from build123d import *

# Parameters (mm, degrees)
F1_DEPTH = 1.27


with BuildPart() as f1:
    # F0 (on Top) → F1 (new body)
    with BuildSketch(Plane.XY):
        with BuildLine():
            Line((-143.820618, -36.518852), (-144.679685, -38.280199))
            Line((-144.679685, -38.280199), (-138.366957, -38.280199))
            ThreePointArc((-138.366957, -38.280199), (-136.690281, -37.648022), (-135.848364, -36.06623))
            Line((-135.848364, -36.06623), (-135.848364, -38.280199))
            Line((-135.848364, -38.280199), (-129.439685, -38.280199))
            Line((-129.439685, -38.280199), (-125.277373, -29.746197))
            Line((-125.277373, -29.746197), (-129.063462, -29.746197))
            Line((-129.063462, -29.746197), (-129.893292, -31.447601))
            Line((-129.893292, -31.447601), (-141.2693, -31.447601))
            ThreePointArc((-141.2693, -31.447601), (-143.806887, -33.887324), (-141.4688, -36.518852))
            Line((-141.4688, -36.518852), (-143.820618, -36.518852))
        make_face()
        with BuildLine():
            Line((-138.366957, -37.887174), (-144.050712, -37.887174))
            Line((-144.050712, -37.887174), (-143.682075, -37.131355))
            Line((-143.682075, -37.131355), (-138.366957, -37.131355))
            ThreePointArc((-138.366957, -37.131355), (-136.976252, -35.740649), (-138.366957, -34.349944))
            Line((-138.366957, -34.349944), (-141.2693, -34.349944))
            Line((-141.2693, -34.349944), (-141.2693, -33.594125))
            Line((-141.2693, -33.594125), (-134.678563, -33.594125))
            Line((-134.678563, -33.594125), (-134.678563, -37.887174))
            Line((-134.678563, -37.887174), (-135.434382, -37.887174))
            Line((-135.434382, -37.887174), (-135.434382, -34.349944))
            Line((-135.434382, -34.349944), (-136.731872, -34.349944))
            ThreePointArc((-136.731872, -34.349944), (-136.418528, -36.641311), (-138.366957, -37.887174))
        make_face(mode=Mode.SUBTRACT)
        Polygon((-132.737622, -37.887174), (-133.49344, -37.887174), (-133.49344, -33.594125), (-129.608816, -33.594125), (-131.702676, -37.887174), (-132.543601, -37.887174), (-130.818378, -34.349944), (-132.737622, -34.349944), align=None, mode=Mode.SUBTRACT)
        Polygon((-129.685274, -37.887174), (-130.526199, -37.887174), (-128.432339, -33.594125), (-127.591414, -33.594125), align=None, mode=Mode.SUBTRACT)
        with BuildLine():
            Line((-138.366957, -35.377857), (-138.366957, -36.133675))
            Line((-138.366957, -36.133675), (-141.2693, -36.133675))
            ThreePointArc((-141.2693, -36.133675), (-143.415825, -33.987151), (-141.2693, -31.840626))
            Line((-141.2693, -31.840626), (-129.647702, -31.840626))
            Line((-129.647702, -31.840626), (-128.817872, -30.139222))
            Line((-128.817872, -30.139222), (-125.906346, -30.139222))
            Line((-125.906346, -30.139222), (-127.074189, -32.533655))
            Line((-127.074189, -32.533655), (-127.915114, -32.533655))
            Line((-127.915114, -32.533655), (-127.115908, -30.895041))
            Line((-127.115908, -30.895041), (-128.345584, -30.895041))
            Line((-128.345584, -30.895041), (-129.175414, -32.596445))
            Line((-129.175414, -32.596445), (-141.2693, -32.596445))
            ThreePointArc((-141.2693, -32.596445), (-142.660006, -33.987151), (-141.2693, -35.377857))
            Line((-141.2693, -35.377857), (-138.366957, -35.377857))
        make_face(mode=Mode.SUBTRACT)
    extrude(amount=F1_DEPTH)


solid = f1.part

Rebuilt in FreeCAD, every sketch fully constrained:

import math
import FreeCAD as App
import Part
import Sketcher
Q = App.Units.Quantity


def add_polygon(sketch, points):
    """Adds a closed chain of lines whose ends are joined by coincident constraints."""
    first, n = sketch.GeometryCount, len(points)
    for a, b in zip(points, points[1:] + points[:1]):
        sketch.addGeometry(Part.LineSegment(App.Vector(*a, 0), App.Vector(*b, 0)), False)
    for i in range(n):
        sketch.addConstraint(Sketcher.Constraint("Coincident", first + i, 2, first + (i + 1) % n, 1))

doc = App.newDocument("Part")
body = doc.addObject("PartDesign::Body", "Body")

# Sketch on XY plane
sketch1 = body.newObject("Sketcher::SketchObject", "Sketch")
sketch1.AttachmentSupport = (doc.getObject("XY_Plane"), [""])
sketch1.MapMode = "FlatFace"
sketch1.addGeometry(Part.LineSegment(App.Vector(-143.8, -36.5, 0), App.Vector(-144.7, -38.3, 0)), False)  # 0
sketch1.addGeometry(Part.LineSegment(App.Vector(-144.7, -38.3, 0), App.Vector(-138.4, -38.3, 0)), False)  # 1
sketch1.addGeometry(Part.ArcOfCircle(Part.Circle(App.Vector(-138.4, -35.7, 0), App.Vector(0, 0, 1), 2.5), math.radians(-90), math.radians(-7)), False)  # 2
sketch1.addGeometry(Part.LineSegment(App.Vector(-135.8, -36.1, 0), App.Vector(-135.8, -38.3, 0)), False)  # 3
sketch1.addGeometry(Part.LineSegment(App.Vector(-135.8, -38.3, 0), App.Vector(-129.4, -38.3, 0)), False)  # 4
sketch1.addGeometry(Part.LineSegment(App.Vector(-129.4, -38.3, 0), App.Vector(-125.3, -29.7, 0)), False)  # 5
sketch1.addGeometry(Part.LineSegment(App.Vector(-125.3, -29.7, 0), App.Vector(-129.1, -29.7, 0)), False)  # 6
sketch1.addGeometry(Part.LineSegment(App.Vector(-129.1, -29.7, 0), App.Vector(-129.9, -31.4, 0)), False)  # 7
sketch1.addGeometry(Part.LineSegment(App.Vector(-129.9, -31.4, 0), App.Vector(-141.3, -31.4, 0)), False)  # 8
sketch1.addGeometry(Part.ArcOfCircle(Part.Circle(App.Vector(-141.3, -34, 0), App.Vector(0, 0, 1), 2.5), math.radians(90), math.radians(265)), False)  # 9
sketch1.addGeometry(Part.LineSegment(App.Vector(-141.5, -36.5, 0), App.Vector(-143.8, -36.5, 0)), False)  # 10
sketch1.addGeometry(Part.ArcOfCircle(Part.Circle(App.Vector(-138.4, -35.7, 0), App.Vector(0, 0, 1), 2.1), math.radians(-90), math.radians(40)), False)  # 11
sketch1.addGeometry(Part.LineSegment(App.Vector(-138.4, -37.9, 0), App.Vector(-144.1, -37.9, 0)), False)  # 12
sketch1.addGeometry(Part.LineSegment(App.Vector(-144.1, -37.9, 0), App.Vector(-143.7, -37.1, 0)), False)  # 13
sketch1.addGeometry(Part.LineSegment(App.Vector(-143.7, -37.1, 0), App.Vector(-138.4, -37.1, 0)), False)  # 14
sketch1.addGeometry(Part.ArcOfCircle(Part.Circle(App.Vector(-138.4, -35.7, 0), App.Vector(0, 0, 1), 1.4), math.radians(-90), math.radians(90)), False)  # 15
sketch1.addGeometry(Part.LineSegment(App.Vector(-138.4, -34.3, 0), App.Vector(-141.3, -34.3, 0)), False)  # 16
sketch1.addGeometry(Part.LineSegment(App.Vector(-141.3, -34.3, 0), App.Vector(-141.3, -33.6, 0)), False)  # 17
sketch1.addGeometry(Part.LineSegment(App.Vector(-141.3, -33.6, 0), App.Vector(-134.7, -33.6, 0)), False)  # 18
sketch1.addGeometry(Part.LineSegment(App.Vector(-134.7, -33.6, 0), App.Vector(-134.7, -37.9, 0)), False)  # 19
sketch1.addGeometry(Part.LineSegment(App.Vector(-134.7, -37.9, 0), App.Vector(-135.4, -37.9, 0)), False)  # 20
sketch1.addGeometry(Part.LineSegment(App.Vector(-135.4, -37.9, 0), App.Vector(-135.4, -34.3, 0)), False)  # 21
sketch1.addGeometry(Part.LineSegment(App.Vector(-135.4, -34.3, 0), App.Vector(-136.7, -34.3, 0)), False)  # 22
add_polygon(sketch1, [(-132.7, -34.3), (-132.7, -37.9), (-133.5, -37.9), (-133.5, -33.6), (-129.6, -33.6), (-131.7, -37.9), (-132.5, -37.9), (-130.8, -34.3)])  # lines 23-30
add_polygon(sketch1, [(-127.6, -33.6), (-129.7, -37.9), (-130.5, -37.9), (-128.4, -33.6)])  # lines 31-34
sketch1.addGeometry(Part.LineSegment(App.Vector(-141.3, -35.4, 0), App.Vector(-138.4, -35.4, 0)), False)  # 35
sketch1.addGeometry(Part.LineSegment(App.Vector(-138.4, -35.4, 0), App.Vector(-138.4, -36.1, 0)), False)  # 36
sketch1.addGeometry(Part.LineSegment(App.Vector(-138.4, -36.1, 0), App.Vector(-141.3, -36.1, 0)), False)  # 37
sketch1.addGeometry(Part.ArcOfCircle(Part.Circle(App.Vector(-141.3, -34, 0), App.Vector(0, 0, 1), 2.1), math.radians(90), math.radians(270)), False)  # 38
sketch1.addGeometry(Part.LineSegment(App.Vector(-141.3, -31.8, 0), App.Vector(-129.6, -31.8, 0)), False)  # 39
sketch1.addGeometry(Part.LineSegment(App.Vector(-129.6, -31.8, 0), App.Vector(-128.8, -30.1, 0)), False)  # 40
sketch1.addGeometry(Part.LineSegment(App.Vector(-128.8, -30.1, 0), App.Vector(-125.9, -30.1, 0)), False)  # 41
sketch1.addGeometry(Part.LineSegment(App.Vector(-125.9, -30.1, 0), App.Vector(-127.1, -32.5, 0)), False)  # 42
sketch1.addGeometry(Part.LineSegment(App.Vector(-127.1, -32.5, 0), App.Vector(-127.9, -32.5, 0)), False)  # 43
sketch1.addGeometry(Part.LineSegment(App.Vector(-127.9, -32.5, 0), App.Vector(-127.1, -30.9, 0)), False)  # 44
sketch1.addGeometry(Part.LineSegment(App.Vector(-127.1, -30.9, 0), App.Vector(-128.3, -30.9, 0)), False)  # 45
sketch1.addGeometry(Part.LineSegment(App.Vector(-128.3, -30.9, 0), App.Vector(-129.2, -32.6, 0)), False)  # 46
sketch1.addGeometry(Part.LineSegment(App.Vector(-129.2, -32.6, 0), App.Vector(-141.3, -32.6, 0)), False)  # 47
sketch1.addGeometry(Part.ArcOfCircle(Part.Circle(App.Vector(-141.3, -34, 0), App.Vector(0, 0, 1), 1.4), math.radians(90), math.radians(270)), False)  # 48
sketch1.addConstraint(Sketcher.Constraint("Coincident", 0, 2, 1, 1))
sketch1.addConstraint(Sketcher.Constraint("Tangent", 1, 2, 2, 1))
sketch1.addConstraint(Sketcher.Constraint("Coincident", 2, 2, 3, 1))
sketch1.addConstraint(Sketcher.Constraint("Coincident", 3, 2, 4, 1))
sketch1.addConstraint(Sketcher.Constraint("Coincident", 4, 2, 5, 1))
sketch1.addConstraint(Sketcher.Constraint("Coincident", 5, 2, 6, 1))
sketch1.addConstraint(Sketcher.Constraint("Coincident", 6, 2, 7, 1))
sketch1.addConstraint(Sketcher.Constraint("Coincident", 7, 2, 8, 1))
sketch1.addConstraint(Sketcher.Constraint("Tangent", 8, 2, 9, 1))
sketch1.addConstraint(Sketcher.Constraint("Coincident", 9, 2, 10, 1))
sketch1.addConstraint(Sketcher.Constraint("Coincident", 10, 2, 0, 1))
sketch1.addConstraint(Sketcher.Constraint("Tangent", 11, 1, 12, 1))
sketch1.addConstraint(Sketcher.Constraint("Coincident", 12, 2, 13, 1))
sketch1.addConstraint(Sketcher.Constraint("Coincident", 13, 2, 14, 1))
sketch1.addConstraint(Sketcher.Constraint("Tangent", 14, 2, 15, 1))
sketch1.addConstraint(Sketcher.Constraint("Tangent", 15, 2, 16, 1))
sketch1.addConstraint(Sketcher.Constraint("Coincident", 16, 2, 17, 1))
sketch1.addConstraint(Sketcher.Constraint("Coincident", 17, 2, 18, 1))
sketch1.addConstraint(Sketcher.Constraint("Coincident", 18, 2, 19, 1))
sketch1.addConstraint(Sketcher.Constraint("Coincident", 19, 2, 20, 1))
sketch1.addConstraint(Sketcher.Constraint("Coincident", 20, 2, 21, 1))
sketch1.addConstraint(Sketcher.Constraint("Coincident", 21, 2, 22, 1))
sketch1.addConstraint(Sketcher.Constraint("Coincident", 22, 2, 11, 2))
sketch1.addConstraint(Sketcher.Constraint("Coincident", 35, 2, 36, 1))
sketch1.addConstraint(Sketcher.Constraint("Coincident", 36, 2, 37, 1))
sketch1.addConstraint(Sketcher.Constraint("Tangent", 37, 2, 38, 2))
sketch1.addConstraint(Sketcher.Constraint("Tangent", 38, 1, 39, 1))
sketch1.addConstraint(Sketcher.Constraint("Coincident", 39, 2, 40, 1))
sketch1.addConstraint(Sketcher.Constraint("Coincident", 40, 2, 41, 1))
sketch1.addConstraint(Sketcher.Constraint("Coincident", 41, 2, 42, 1))
sketch1.addConstraint(Sketcher.Constraint("Coincident", 42, 2, 43, 1))
sketch1.addConstraint(Sketcher.Constraint("Coincident", 43, 2, 44, 1))
sketch1.addConstraint(Sketcher.Constraint("Coincident", 44, 2, 45, 1))
sketch1.addConstraint(Sketcher.Constraint("Coincident", 45, 2, 46, 1))
sketch1.addConstraint(Sketcher.Constraint("Coincident", 46, 2, 47, 1))
sketch1.addConstraint(Sketcher.Constraint("Tangent", 47, 2, 48, 1))
sketch1.addConstraint(Sketcher.Constraint("Tangent", 48, 2, 35, 1))
sketch1.addConstraint(Sketcher.Constraint("Horizontal", 1))
sketch1.addConstraint(Sketcher.Constraint("Vertical", 3))
sketch1.addConstraint(Sketcher.Constraint("Horizontal", 4))
sketch1.addConstraint(Sketcher.Constraint("Horizontal", 6))
sketch1.addConstraint(Sketcher.Constraint("Horizontal", 8))
sketch1.addConstraint(Sketcher.Constraint("Horizontal", 10))
sketch1.addConstraint(Sketcher.Constraint("Horizontal", 12))
sketch1.addConstraint(Sketcher.Constraint("Horizontal", 14))
sketch1.addConstraint(Sketcher.Constraint("Horizontal", 16))
sketch1.addConstraint(Sketcher.Constraint("Vertical", 17))
sketch1.addConstraint(Sketcher.Constraint("Horizontal", 18))
sketch1.addConstraint(Sketcher.Constraint("Vertical", 19))
sketch1.addConstraint(Sketcher.Constraint("Horizontal", 20))
sketch1.addConstraint(Sketcher.Constraint("Vertical", 21))
sketch1.addConstraint(Sketcher.Constraint("Horizontal", 22))
sketch1.addConstraint(Sketcher.Constraint("Vertical", 23))
sketch1.addConstraint(Sketcher.Constraint("Horizontal", 24))
sketch1.addConstraint(Sketcher.Constraint("Vertical", 25))
sketch1.addConstraint(Sketcher.Constraint("Horizontal", 26))
sketch1.addConstraint(Sketcher.Constraint("Horizontal", 28))
sketch1.addConstraint(Sketcher.Constraint("Horizontal", 30))
sketch1.addConstraint(Sketcher.Constraint("Horizontal", 32))
sketch1.addConstraint(Sketcher.Constraint("Horizontal", 34))
sketch1.addConstraint(Sketcher.Constraint("Horizontal", 35))
sketch1.addConstraint(Sketcher.Constraint("Vertical", 36))
sketch1.addConstraint(Sketcher.Constraint("Horizontal", 37))
sketch1.addConstraint(Sketcher.Constraint("Horizontal", 39))
sketch1.addConstraint(Sketcher.Constraint("Horizontal", 41))
sketch1.addConstraint(Sketcher.Constraint("Horizontal", 43))
sketch1.addConstraint(Sketcher.Constraint("Horizontal", 45))
sketch1.addConstraint(Sketcher.Constraint("Horizontal", 47))
sketch1.addConstraint(Sketcher.Constraint("Coincident", 11, 3, 2, 3))
sketch1.addConstraint(Sketcher.Constraint("Coincident", 15, 3, 2, 3))
sketch1.addConstraint(Sketcher.Constraint("Coincident", 38, 3, 9, 3))
sketch1.addConstraint(Sketcher.Constraint("Coincident", 48, 3, 9, 3))
sketch1.addConstraint(Sketcher.Constraint("Equal", 2, 9))
sketch1.addConstraint(Sketcher.Constraint("Equal", 11, 38))
sketch1.addConstraint(Sketcher.Constraint("Equal", 15, 48))
sketch1.addConstraint(Sketcher.Constraint("Parallel", 0, 5))
sketch1.addConstraint(Sketcher.Constraint("Parallel", 5, 7))
sketch1.addConstraint(Sketcher.Constraint("Parallel", 7, 13))
sketch1.addConstraint(Sketcher.Constraint("Parallel", 13, 27))
sketch1.addConstraint(Sketcher.Constraint("Parallel", 27, 29))
sketch1.addConstraint(Sketcher.Constraint("Parallel", 29, 31))
sketch1.addConstraint(Sketcher.Constraint("Parallel", 31, 33))
sketch1.addConstraint(Sketcher.Constraint("Parallel", 33, 40))
sketch1.addConstraint(Sketcher.Constraint("Parallel", 40, 42))
sketch1.addConstraint(Sketcher.Constraint("Parallel", 42, 44))
sketch1.addConstraint(Sketcher.Constraint("Parallel", 44, 46))
sketch1.addConstraint(Sketcher.Constraint("Horizontal", 1, 2, 3, 2))
sketch1.addConstraint(Sketcher.Constraint("Horizontal", 12, 2, 19, 2))
sketch1.addConstraint(Sketcher.Constraint("Horizontal", 16, 2, 21, 2))
sketch1.addConstraint(Sketcher.Constraint("Horizontal", 20, 2, 23, 2))
sketch1.addConstraint(Sketcher.Constraint("Horizontal", 18, 2, 25, 2))
sketch1.addConstraint(Sketcher.Constraint("Horizontal", 24, 2, 27, 2))
sketch1.addConstraint(Sketcher.Constraint("Horizontal", 22, 2, 29, 2))
sketch1.addConstraint(Sketcher.Constraint("Horizontal", 28, 2, 31, 2))
sketch1.addConstraint(Sketcher.Constraint("Horizontal", 26, 2, 33, 2))
sketch1.addConstraint(Sketcher.Constraint("Vertical", 8, 2, 16, 2))
sketch1.addConstraint(Sketcher.Constraint("Vertical", 15, 2, 35, 2))
sketch1.addConstraint(Sketcher.Constraint("Equal", 20, 24))
sketch1.addConstraint(Sketcher.Constraint("Equal", 28, 32))
sketch1.addConstraint(Sketcher.Constraint("Equal", 34, 43))
sketch1.addConstraint(Sketcher.Constraint("Equal", 24, 17))
sketch1.addConstraint(Sketcher.Constraint("Equal", 17, 36))
sketch1.addConstraint(Sketcher.Constraint("Equal", 7, 40))
sketch1.addConstraint(Sketcher.Constraint("Equal", 40, 46))
sketch1.addConstraint(Sketcher.Constraint("Angle", 0, Q("-116.000018 deg")))
sketch1.addConstraint(Sketcher.Constraint("Radius", 2, 2.53955))
sketch1.addConstraint(Sketcher.Constraint("DistanceY", 4, 2, 7, 2, Q("0.2689999 in")))
sketch1.addConstraint(Sketcher.Constraint("Radius", 11, 2.146524))
sketch1.addConstraint(Sketcher.Constraint("Radius", 15, 1.390705))
sketch1.addConstraint(Sketcher.Constraint("DistanceX", 7, 2, 26, 2, Q("0.0111998 in")))
sketch1.addConstraint(Sketcher.Constraint("DistanceX", 4, 1, 4, 2, 6.408679))
sketch1.addConstraint(Sketcher.Constraint("DistanceX", 6, 2, 6, 1, 3.786089))
sketch1.addConstraint(Sketcher.Constraint("DistanceX", 10, 2, 10, 1, 2.351818))
sketch1.addConstraint(Sketcher.Constraint("DistanceX", 22, 2, 22, 1, 1.29749))
sketch1.addConstraint(Sketcher.Constraint("DistanceY", 3, 2, 3, 1, 2.213969))
sketch1.addConstraint(Sketcher.Constraint("DistanceX", 9, 3, -1, 1, 141.2693))
sketch1.addConstraint(Sketcher.Constraint("DistanceY", 0, 2, -1, 1, 38.280199))
sketch1.addConstraint(Sketcher.Constraint("DistanceX", 9, 2, -1, 1, 141.4688))
sketch1.addConstraint(Sketcher.Constraint("DistanceX", 28, 2, -1, 1, 132.543601))
sketch1.addConstraint(Sketcher.Constraint("DistanceX", 32, 2, -1, 1, 130.526199))
sketch1.addConstraint(Sketcher.Constraint("DistanceX", 27, 2, 29, 2, 0.884298))
sketch1.addConstraint(Sketcher.Constraint("DistanceX", 43, 2, 34, 2, 0.3237))
sketch1.addConstraint(Sketcher.Constraint("DistanceX", 46, 2, 43, 2, 1.2603))
sketch1.addConstraint(Sketcher.Constraint("Distance", 42, 2.664051))
sketch1.addConstraint(Sketcher.Constraint("DistanceX", 12, 2, 12, 1, 5.683755))
sketch1.addConstraint(Sketcher.Constraint("DistanceX", 26, 1, 26, 2, 3.884624))
sketch1.addConstraint(Sketcher.Constraint("DistanceX", 39, 1, 39, 2, 11.621598))
sketch1.addConstraint(Sketcher.Constraint("DistanceX", 41, 1, 41, 2, 2.911526))
pad1 = body.newObject("PartDesign::Pad", "Pad")
pad1.Profile = sketch1
pad1.Length = Q("0.05 in")

doc.recompute()
